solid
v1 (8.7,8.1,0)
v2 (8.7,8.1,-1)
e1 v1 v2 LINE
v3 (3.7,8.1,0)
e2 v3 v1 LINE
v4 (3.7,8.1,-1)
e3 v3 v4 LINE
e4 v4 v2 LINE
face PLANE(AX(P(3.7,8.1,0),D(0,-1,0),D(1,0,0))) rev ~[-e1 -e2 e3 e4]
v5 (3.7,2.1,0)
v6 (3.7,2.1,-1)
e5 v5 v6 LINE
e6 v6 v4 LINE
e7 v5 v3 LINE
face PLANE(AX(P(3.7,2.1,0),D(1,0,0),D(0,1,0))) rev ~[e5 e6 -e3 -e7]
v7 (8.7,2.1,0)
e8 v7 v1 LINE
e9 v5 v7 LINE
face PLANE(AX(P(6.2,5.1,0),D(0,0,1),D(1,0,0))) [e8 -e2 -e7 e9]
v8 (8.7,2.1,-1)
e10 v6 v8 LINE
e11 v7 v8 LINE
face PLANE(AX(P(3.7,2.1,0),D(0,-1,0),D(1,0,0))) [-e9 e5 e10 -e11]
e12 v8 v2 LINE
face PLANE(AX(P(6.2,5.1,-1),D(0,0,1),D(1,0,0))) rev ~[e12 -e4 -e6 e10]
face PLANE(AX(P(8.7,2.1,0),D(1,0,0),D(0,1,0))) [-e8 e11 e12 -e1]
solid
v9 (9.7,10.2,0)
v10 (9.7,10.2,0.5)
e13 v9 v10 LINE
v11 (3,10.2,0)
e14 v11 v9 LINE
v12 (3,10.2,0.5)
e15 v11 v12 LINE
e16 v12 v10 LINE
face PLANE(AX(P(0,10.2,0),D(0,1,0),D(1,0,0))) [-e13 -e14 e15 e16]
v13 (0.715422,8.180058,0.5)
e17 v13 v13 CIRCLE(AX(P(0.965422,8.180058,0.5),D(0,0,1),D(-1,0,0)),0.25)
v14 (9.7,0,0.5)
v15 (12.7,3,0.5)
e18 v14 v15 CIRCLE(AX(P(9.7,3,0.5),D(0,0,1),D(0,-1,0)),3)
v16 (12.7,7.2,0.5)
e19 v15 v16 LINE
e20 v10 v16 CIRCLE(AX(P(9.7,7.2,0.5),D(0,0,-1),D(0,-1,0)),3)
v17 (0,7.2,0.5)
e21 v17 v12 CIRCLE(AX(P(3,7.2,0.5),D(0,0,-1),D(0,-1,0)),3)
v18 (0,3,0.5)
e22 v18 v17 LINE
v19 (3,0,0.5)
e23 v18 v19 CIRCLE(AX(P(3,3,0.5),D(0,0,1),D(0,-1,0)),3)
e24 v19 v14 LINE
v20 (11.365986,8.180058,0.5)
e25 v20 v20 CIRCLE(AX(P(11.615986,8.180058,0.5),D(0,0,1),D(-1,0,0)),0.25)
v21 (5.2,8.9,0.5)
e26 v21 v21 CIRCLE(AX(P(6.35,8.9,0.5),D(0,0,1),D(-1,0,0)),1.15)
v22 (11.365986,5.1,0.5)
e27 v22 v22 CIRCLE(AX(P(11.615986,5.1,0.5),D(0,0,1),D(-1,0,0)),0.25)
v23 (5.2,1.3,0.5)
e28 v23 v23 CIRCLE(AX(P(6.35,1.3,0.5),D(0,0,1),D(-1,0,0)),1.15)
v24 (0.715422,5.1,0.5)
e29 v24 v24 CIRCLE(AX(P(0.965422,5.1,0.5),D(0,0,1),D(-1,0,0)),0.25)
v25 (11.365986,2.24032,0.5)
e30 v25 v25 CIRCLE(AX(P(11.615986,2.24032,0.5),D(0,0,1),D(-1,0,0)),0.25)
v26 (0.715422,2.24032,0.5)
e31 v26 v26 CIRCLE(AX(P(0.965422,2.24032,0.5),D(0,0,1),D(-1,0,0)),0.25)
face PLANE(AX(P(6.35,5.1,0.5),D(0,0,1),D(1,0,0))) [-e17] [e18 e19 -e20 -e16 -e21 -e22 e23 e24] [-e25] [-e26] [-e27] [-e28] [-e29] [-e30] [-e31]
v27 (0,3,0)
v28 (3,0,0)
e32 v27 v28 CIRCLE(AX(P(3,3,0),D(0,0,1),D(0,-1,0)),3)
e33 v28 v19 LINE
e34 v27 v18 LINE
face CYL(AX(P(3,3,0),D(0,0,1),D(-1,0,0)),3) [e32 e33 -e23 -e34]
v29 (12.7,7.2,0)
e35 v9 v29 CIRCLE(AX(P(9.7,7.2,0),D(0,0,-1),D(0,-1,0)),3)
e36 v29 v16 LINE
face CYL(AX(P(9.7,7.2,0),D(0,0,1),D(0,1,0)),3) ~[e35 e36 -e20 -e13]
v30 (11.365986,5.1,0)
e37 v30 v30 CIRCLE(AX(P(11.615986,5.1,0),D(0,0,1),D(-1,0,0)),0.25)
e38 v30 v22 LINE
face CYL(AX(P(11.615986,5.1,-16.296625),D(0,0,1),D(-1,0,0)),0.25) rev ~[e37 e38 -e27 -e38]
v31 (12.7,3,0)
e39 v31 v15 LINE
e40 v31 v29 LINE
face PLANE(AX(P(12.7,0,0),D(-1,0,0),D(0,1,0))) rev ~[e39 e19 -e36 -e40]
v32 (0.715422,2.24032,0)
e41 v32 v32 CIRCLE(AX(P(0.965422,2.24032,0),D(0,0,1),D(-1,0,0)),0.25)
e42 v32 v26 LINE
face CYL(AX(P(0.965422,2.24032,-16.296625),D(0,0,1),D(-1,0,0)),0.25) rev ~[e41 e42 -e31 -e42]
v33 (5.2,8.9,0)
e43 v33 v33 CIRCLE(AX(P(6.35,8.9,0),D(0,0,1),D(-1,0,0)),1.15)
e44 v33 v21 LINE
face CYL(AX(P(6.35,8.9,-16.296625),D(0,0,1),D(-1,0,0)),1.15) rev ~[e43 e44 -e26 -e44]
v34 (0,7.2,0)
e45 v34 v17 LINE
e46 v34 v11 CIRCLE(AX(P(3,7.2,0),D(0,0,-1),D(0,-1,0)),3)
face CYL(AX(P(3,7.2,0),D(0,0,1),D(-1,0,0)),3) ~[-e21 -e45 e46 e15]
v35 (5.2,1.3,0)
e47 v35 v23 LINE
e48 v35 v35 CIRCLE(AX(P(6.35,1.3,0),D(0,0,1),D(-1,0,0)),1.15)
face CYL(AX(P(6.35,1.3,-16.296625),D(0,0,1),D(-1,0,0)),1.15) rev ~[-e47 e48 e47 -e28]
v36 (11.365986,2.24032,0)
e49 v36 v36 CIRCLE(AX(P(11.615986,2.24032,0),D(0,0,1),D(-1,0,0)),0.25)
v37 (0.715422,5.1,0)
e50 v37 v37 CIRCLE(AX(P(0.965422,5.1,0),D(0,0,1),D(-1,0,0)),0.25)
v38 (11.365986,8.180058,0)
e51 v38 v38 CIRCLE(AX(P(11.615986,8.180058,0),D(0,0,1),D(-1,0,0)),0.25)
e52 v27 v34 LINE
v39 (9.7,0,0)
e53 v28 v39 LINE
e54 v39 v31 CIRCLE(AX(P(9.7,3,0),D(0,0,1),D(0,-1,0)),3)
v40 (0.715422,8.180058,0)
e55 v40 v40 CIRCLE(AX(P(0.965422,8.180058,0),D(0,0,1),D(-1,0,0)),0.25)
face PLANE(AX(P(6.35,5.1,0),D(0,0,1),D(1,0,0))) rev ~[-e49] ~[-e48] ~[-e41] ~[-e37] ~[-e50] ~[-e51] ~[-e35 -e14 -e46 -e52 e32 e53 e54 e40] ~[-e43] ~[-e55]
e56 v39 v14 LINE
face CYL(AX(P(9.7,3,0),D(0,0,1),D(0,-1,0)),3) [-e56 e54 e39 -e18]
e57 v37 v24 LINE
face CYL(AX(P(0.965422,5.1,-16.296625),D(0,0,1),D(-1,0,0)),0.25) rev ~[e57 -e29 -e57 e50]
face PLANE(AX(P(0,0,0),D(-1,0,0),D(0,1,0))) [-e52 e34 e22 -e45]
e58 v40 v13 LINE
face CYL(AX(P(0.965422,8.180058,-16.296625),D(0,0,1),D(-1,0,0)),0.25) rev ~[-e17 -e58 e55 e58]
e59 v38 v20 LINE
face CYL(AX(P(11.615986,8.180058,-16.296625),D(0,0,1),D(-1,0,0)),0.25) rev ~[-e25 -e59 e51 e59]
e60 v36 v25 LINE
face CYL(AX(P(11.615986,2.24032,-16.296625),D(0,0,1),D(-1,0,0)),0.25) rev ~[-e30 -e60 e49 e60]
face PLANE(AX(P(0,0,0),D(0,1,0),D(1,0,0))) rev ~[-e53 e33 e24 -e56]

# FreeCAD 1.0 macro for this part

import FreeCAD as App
import Part
import Sketcher

V = App.Vector
Q = App.Units.Quantity


def edges_at(feature, points):
    """Names of the edges that pass closest to the given points."""
    edges = feature.Shape.Edges
    near = lambda p: min(range(len(edges)), key=lambda i: edges[i].distToShape(Part.Vertex(*p))[0])
    return sorted({f"Edge{near(p) + 1}" for p in points})

doc = App.newDocument("Part")
body = doc.addObject("PartDesign::Body", "Body")

# Sketch on XY plane
sketch1 = body.newObject("Sketcher::SketchObject", "Sketch")
sketch1.AttachmentSupport = (doc.getObject("XY_Plane"), [""])
sketch1.MapMode = "FlatFace"
sketch1.addGeometry(Part.LineSegment(V(0, 10, 0), V(0, 0, 0)), False)
sketch1.addGeometry(Part.LineSegment(V(0, 0, 0), V(13, 0, 0)), False)
sketch1.addGeometry(Part.LineSegment(V(13, 0, 0), V(13, 10, 0)), False)
sketch1.addGeometry(Part.LineSegment(V(13, 10, 0), V(0, 10, 0)), False)
sketch1.addConstraint(Sketcher.Constraint("Coincident", 0, 2, 1, 1))
sketch1.addConstraint(Sketcher.Constraint("Coincident", 1, 2, 2, 1))
sketch1.addConstraint(Sketcher.Constraint("Coincident", 2, 2, 3, 1))
sketch1.addConstraint(Sketcher.Constraint("Coincident", 3, 2, 0, 1))
sketch1.addConstraint(Sketcher.Constraint("Vertical", 0))
sketch1.addConstraint(Sketcher.Constraint("Horizontal", 1))
sketch1.addConstraint(Sketcher.Constraint("Vertical", 2))
sketch1.addConstraint(Sketcher.Constraint("Horizontal", 3))
sketch1.addConstraint(Sketcher.Constraint("Coincident", 0, 2, -1, 1))
sketch1.addConstraint(Sketcher.Constraint("DistanceX", 1, 1, 1, 2, Q("12.7 mm")))
sketch1.addConstraint(Sketcher.Constraint("DistanceY", 0, 2, 0, 1, Q("10.2 mm")))
pad1 = body.newObject("PartDesign::Pad", "Pad")
pad1.Profile = sketch1
pad1.Length = 0.5

# Sketch on XY plane
sketch2 = body.newObject("Sketcher::SketchObject", "Sketch001")
sketch2.AttachmentSupport = (doc.getObject("XY_Plane"), [""])
sketch2.MapMode = "FlatFace"
sketch2.addGeometry(Part.Circle(V(11.62, 2.24, 0), V(0, 0, 1), 0.25), False)
sketch2.addGeometry(Part.Circle(V(11.62, 5.1, 0), V(0, 0, 1), 0.25), False)
sketch2.addGeometry(Part.Circle(V(11.62, 8.18, 0), V(0, 0, 1), 0.25), False)
sketch2.addGeometry(Part.Circle(V(0.97, 8.18, 0), V(0, 0, 1), 0.25), False)
sketch2.addGeometry(Part.Circle(V(0.97, 5.1, 0), V(0, 0, 1), 0.25), False)
sketch2.addGeometry(Part.Circle(V(0.97, 2.24, 0), V(0, 0, 1), 0.25), False)
sketch2.addConstraint(Sketcher.Constraint("Equal", 0, 1))
sketch2.addConstraint(Sketcher.Constraint("Equal", 1, 2))
sketch2.addConstraint(Sketcher.Constraint("Equal", 2, 3))
sketch2.addConstraint(Sketcher.Constraint("Equal", 3, 4))
sketch2.addConstraint(Sketcher.Constraint("Equal", 4, 5))
sketch2.addConstraint(Sketcher.Constraint("Horizontal", 2, 3, 3, 3))
sketch2.addConstraint(Sketcher.Constraint("Horizontal", 1, 3, 4, 3))
sketch2.addConstraint(Sketcher.Constraint("Horizontal", 0, 3, 5, 3))
sketch2.addConstraint(Sketcher.Constraint("Vertical", 0, 3, 1, 3))
sketch2.addConstraint(Sketcher.Constraint("Vertical", 1, 3, 2, 3))
sketch2.addConstraint(Sketcher.Constraint("Vertical", 3, 3, 4, 3))
sketch2.addConstraint(Sketcher.Constraint("Vertical", 4, 3, 5, 3))
sketch2.addConstraint(Sketcher.Constraint("Diameter", 0, Q("0.5 mm")))
sketch2.addConstraint(Sketcher.Constraint("DistanceY", -1, 1, 1, 3, Q("5.1 mm")))
sketch2.addConstraint(Sketcher.Constraint("DistanceY", -1, 1, 0, 3, Q("2.24032 mm")))
sketch2.addConstraint(Sketcher.Constraint("DistanceX", -1, 1, 3, 3, Q("0.965422 mm")))
sketch2.addConstraint(Sketcher.Constraint("DistanceX", -1, 1, 0, 3, Q("11.615986 mm")))
sketch2.addConstraint(Sketcher.Constraint("DistanceY", -1, 1, 2, 3, Q("8.180058 mm")))
doc.recompute()
hole = body.newObject("PartDesign::Hole", "Hole")
hole.Profile = sketch2
hole.ThreadType = "None"
hole.Diameter = 0.5
hole.DepthType = "ThroughAll"
hole.Reversed = True

# Sketch on XY plane
sketch3 = body.newObject("Sketcher::SketchObject", "Sketch002")
sketch3.AttachmentSupport = (doc.getObject("XY_Plane"), [""])
sketch3.MapMode = "FlatFace"
sketch3.addGeometry(Part.Circle(V(6.3, 1.3, 0), V(0, 0, 1), 1.1), False)
sketch3.addGeometry(Part.Circle(V(6.3, 8.9, 0), V(0, 0, 1), 1.1), False)
sketch3.addConstraint(Sketcher.Constraint("Equal", 0, 1))
sketch3.addConstraint(Sketcher.Constraint("Vertical", 0, 3, 1, 3))
sketch3.addConstraint(Sketcher.Constraint("Diameter", 0, Q("2.3 mm")))
sketch3.addConstraint(Sketcher.Constraint("DistanceY", -1, 1, 0, 3, Q("1.3 mm")))
sketch3.addConstraint(Sketcher.Constraint("DistanceY", -1, 1, 1, 3, Q("8.9 mm")))
sketch3.addConstraint(Sketcher.Constraint("DistanceX", -1, 1, 0, 3, Q("6.35 mm")))
doc.recompute()
hole2 = body.newObject("PartDesign::Hole", "Hole001")
hole2.Profile = sketch3
hole2.ThreadType = "None"
hole2.Diameter = 2.3
hole2.DepthType = "ThroughAll"
hole2.Reversed = True
doc.recompute()

fillet = body.newObject("PartDesign::Fillet", "Fillet")
fillet.Base = (hole2, edges_at(hole2, [
    (0, 10.2, 0.25),
    (12.7, 10.2, 0.25),
    (0, 0, 0.25),
    (12.7, 0, 0.25),
]))
fillet.Radius = 3
body2 = doc.addObject("PartDesign::Body", "Body001")

# Sketch on XY plane
sketch4 = body2.newObject("Sketcher::SketchObject", "Sketch003")
sketch4.AttachmentSupport = (doc.getObject("XY_Plane001"), [""])
sketch4.MapMode = "FlatFace"
sketch4.addGeometry(Part.LineSegment(V(3.7, 8.1, 0), V(3.7, 2.1, 0)), False)
sketch4.addGeometry(Part.LineSegment(V(3.7, 2.1, 0), V(8.7, 2.1, 0)), False)
sketch4.addGeometry(Part.LineSegment(V(8.7, 2.1, 0), V(8.7, 8.1, 0)), False)
sketch4.addGeometry(Part.LineSegment(V(8.7, 8.1, 0), V(3.7, 8.1, 0)), False)
sketch4.addConstraint(Sketcher.Constraint("Coincident", 0, 2, 1, 1))
sketch4.addConstraint(Sketcher.Constraint("Coincident", 1, 2, 2, 1))
sketch4.addConstraint(Sketcher.Constraint("Coincident", 2, 2, 3, 1))
sketch4.addConstraint(Sketcher.Constraint("Coincident", 3, 2, 0, 1))
sketch4.addConstraint(Sketcher.Constraint("Vertical", 0))
sketch4.addConstraint(Sketcher.Constraint("Horizontal", 1))
sketch4.addConstraint(Sketcher.Constraint("Vertical", 2))
sketch4.addConstraint(Sketcher.Constraint("Horizontal", 3))
sketch4.addConstraint(Sketcher.Constraint("DistanceX", 1, 1, 1, 2, Q("5 mm")))
sketch4.addConstraint(Sketcher.Constraint("DistanceY", 0, 2, 0, 1, Q("6 mm")))
sketch4.addConstraint(Sketcher.Constraint("DistanceX", -1, 1, 0, 2, Q("3.7 mm")))
sketch4.addConstraint(Sketcher.Constraint("DistanceY", -1, 1, 0, 2, Q("2.1 mm")))
pad2 = body2.newObject("PartDesign::Pad", "Pad001")
pad2.Profile = sketch4
pad2.Length = 1
pad2.Reversed = True

doc.recompute()
